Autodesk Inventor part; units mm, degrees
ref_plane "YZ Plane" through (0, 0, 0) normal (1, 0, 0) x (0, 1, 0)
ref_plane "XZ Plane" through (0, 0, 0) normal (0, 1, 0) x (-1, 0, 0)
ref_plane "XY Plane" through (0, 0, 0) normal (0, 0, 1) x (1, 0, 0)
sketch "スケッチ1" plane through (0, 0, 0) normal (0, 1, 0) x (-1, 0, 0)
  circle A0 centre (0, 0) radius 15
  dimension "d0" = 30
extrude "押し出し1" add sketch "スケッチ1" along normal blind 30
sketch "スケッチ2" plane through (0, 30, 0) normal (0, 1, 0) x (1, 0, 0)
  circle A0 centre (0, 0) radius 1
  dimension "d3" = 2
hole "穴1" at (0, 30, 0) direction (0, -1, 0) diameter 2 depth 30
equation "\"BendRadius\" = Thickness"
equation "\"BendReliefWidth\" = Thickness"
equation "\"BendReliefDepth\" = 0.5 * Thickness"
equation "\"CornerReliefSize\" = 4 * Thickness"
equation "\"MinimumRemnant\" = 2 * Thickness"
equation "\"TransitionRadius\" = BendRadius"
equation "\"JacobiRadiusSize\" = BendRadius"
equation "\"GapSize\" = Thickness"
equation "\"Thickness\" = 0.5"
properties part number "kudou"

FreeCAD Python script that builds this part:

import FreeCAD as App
import Part
import Sketcher

V = App.Vector
Q = App.Units.Quantity

doc = App.newDocument("Part")
body = doc.addObject("PartDesign::Body", "Body")

# Sketch on XZ plane
sketch1 = doc.addObject("Sketcher::SketchObject", "Sketch")
body.addObject(sketch1)
sketch1.AttachmentSupport = (doc.XZ_Plane, [""])
sketch1.MapMode = "FlatFace"
sketch1.addGeometry(Part.Circle(V(0, 0, 0), V(0, 0, 1), 15), False)
sketch1.addConstraint([
    Sketcher.Constraint("Coincident", 0, 3, -1, 1),
    Sketcher.Constraint("Diameter", 0, Q("30 mm")),
])
pad1 = doc.addObject("PartDesign::Pad", "Pad")
body.addObject(pad1)
pad1.Profile = sketch1
pad1.Length = 30
pad1.Reversed = True

# Sketch on XZ plane
sketch2 = doc.addObject("Sketcher::SketchObject", "Sketch001")
body.addObject(sketch2)
sketch2.AttachmentSupport = (doc.XZ_Plane, [""])
sketch2.MapMode = "FlatFace"
sketch2.AttachmentOffset = App.Placement(V(0, 0, -30), App.Rotation())
sketch2.addGeometry(Part.Circle(V(0, 0, 0), V(0, 0, 1), 1), False)
sketch2.addConstraint([
    Sketcher.Constraint("Coincident", 0, 3, -1, 1),
    Sketcher.Constraint("Diameter", 0, Q("2 mm")),
])
doc.recompute()
hole = doc.addObject("PartDesign::Hole", "Hole")
body.addObject(hole)
hole.Profile = sketch2
hole.ThreadType = "None"
hole.Diameter = 2
hole.DepthType = "Dimension"
hole.Depth = 30
hole.DrillPoint = "Flat"
hole.Reversed = True

doc.recompute()
